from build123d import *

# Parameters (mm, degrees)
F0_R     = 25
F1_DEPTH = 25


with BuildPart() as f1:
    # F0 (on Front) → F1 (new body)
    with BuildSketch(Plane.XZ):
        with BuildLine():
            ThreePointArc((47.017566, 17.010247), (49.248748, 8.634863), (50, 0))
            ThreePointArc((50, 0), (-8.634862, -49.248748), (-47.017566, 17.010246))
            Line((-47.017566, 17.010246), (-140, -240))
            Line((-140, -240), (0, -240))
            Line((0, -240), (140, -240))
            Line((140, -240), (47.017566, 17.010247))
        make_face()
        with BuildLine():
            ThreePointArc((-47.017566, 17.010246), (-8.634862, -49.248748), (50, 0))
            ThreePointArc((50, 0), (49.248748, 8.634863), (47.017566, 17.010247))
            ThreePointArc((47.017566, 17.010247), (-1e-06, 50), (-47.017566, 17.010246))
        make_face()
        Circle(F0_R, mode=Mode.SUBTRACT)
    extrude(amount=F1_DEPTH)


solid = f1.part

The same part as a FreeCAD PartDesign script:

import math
import FreeCAD as App
import Part
import Sketcher

doc = App.newDocument("Part")
body = doc.addObject("PartDesign::Body", "Body")

sketch1 = body.newObject("Sketcher::SketchObject", "Sketch")
sketch1.AttachmentSupport = (doc.getObject("XZ_Plane"), [""])
sketch1.MapMode = "FlatFace"
sketch1.addGeometry([
    Part.LineSegment(App.Vector(-47, 17, 0), App.Vector(-140, -240, 0)),
    Part.LineSegment(App.Vector(-140, -240, 0), App.Vector(140, -240, 0)),
    Part.LineSegment(App.Vector(140, -240, 0), App.Vector(47, 17, 0)),
    Part.ArcOfCircle(Part.Circle(App.Vector(0, 0, 0), App.Vector(0, 0, 1), 50), math.radians(20), math.radians(160)),
    Part.Circle(App.Vector(0, 0, 0), App.Vector(0, 0, 1), 25),
], False)
sketch1.addConstraint([
    Sketcher.Constraint("Coincident", 0, 2, 1, 1),
    Sketcher.Constraint("Coincident", 1, 2, 2, 1),
    Sketcher.Constraint("Tangent", 2, 2, 3, 1),
    Sketcher.Constraint("Tangent", 3, 2, 0, 1),
    Sketcher.Constraint("Horizontal", 1),
    Sketcher.Constraint("Coincident", 3, 3, -1, 1),
    Sketcher.Constraint("Coincident", 4, 3, -1, 1),
    Sketcher.Constraint("Horizontal", 2, 2, 3, 2),
    Sketcher.Constraint("Diameter", 4, 50.0),
    Sketcher.Constraint("Radius", 3, 50.0),
    Sketcher.Constraint("DistanceX", 1, 1, 1, 2, 280.0),
    Sketcher.Constraint("DistanceY", 0, 2, -1, 1, 240.0),
])
pad1 = body.newObject("PartDesign::Pad", "Pad")
pad1.Profile = sketch1
pad1.Length = 25

doc.recompute()
